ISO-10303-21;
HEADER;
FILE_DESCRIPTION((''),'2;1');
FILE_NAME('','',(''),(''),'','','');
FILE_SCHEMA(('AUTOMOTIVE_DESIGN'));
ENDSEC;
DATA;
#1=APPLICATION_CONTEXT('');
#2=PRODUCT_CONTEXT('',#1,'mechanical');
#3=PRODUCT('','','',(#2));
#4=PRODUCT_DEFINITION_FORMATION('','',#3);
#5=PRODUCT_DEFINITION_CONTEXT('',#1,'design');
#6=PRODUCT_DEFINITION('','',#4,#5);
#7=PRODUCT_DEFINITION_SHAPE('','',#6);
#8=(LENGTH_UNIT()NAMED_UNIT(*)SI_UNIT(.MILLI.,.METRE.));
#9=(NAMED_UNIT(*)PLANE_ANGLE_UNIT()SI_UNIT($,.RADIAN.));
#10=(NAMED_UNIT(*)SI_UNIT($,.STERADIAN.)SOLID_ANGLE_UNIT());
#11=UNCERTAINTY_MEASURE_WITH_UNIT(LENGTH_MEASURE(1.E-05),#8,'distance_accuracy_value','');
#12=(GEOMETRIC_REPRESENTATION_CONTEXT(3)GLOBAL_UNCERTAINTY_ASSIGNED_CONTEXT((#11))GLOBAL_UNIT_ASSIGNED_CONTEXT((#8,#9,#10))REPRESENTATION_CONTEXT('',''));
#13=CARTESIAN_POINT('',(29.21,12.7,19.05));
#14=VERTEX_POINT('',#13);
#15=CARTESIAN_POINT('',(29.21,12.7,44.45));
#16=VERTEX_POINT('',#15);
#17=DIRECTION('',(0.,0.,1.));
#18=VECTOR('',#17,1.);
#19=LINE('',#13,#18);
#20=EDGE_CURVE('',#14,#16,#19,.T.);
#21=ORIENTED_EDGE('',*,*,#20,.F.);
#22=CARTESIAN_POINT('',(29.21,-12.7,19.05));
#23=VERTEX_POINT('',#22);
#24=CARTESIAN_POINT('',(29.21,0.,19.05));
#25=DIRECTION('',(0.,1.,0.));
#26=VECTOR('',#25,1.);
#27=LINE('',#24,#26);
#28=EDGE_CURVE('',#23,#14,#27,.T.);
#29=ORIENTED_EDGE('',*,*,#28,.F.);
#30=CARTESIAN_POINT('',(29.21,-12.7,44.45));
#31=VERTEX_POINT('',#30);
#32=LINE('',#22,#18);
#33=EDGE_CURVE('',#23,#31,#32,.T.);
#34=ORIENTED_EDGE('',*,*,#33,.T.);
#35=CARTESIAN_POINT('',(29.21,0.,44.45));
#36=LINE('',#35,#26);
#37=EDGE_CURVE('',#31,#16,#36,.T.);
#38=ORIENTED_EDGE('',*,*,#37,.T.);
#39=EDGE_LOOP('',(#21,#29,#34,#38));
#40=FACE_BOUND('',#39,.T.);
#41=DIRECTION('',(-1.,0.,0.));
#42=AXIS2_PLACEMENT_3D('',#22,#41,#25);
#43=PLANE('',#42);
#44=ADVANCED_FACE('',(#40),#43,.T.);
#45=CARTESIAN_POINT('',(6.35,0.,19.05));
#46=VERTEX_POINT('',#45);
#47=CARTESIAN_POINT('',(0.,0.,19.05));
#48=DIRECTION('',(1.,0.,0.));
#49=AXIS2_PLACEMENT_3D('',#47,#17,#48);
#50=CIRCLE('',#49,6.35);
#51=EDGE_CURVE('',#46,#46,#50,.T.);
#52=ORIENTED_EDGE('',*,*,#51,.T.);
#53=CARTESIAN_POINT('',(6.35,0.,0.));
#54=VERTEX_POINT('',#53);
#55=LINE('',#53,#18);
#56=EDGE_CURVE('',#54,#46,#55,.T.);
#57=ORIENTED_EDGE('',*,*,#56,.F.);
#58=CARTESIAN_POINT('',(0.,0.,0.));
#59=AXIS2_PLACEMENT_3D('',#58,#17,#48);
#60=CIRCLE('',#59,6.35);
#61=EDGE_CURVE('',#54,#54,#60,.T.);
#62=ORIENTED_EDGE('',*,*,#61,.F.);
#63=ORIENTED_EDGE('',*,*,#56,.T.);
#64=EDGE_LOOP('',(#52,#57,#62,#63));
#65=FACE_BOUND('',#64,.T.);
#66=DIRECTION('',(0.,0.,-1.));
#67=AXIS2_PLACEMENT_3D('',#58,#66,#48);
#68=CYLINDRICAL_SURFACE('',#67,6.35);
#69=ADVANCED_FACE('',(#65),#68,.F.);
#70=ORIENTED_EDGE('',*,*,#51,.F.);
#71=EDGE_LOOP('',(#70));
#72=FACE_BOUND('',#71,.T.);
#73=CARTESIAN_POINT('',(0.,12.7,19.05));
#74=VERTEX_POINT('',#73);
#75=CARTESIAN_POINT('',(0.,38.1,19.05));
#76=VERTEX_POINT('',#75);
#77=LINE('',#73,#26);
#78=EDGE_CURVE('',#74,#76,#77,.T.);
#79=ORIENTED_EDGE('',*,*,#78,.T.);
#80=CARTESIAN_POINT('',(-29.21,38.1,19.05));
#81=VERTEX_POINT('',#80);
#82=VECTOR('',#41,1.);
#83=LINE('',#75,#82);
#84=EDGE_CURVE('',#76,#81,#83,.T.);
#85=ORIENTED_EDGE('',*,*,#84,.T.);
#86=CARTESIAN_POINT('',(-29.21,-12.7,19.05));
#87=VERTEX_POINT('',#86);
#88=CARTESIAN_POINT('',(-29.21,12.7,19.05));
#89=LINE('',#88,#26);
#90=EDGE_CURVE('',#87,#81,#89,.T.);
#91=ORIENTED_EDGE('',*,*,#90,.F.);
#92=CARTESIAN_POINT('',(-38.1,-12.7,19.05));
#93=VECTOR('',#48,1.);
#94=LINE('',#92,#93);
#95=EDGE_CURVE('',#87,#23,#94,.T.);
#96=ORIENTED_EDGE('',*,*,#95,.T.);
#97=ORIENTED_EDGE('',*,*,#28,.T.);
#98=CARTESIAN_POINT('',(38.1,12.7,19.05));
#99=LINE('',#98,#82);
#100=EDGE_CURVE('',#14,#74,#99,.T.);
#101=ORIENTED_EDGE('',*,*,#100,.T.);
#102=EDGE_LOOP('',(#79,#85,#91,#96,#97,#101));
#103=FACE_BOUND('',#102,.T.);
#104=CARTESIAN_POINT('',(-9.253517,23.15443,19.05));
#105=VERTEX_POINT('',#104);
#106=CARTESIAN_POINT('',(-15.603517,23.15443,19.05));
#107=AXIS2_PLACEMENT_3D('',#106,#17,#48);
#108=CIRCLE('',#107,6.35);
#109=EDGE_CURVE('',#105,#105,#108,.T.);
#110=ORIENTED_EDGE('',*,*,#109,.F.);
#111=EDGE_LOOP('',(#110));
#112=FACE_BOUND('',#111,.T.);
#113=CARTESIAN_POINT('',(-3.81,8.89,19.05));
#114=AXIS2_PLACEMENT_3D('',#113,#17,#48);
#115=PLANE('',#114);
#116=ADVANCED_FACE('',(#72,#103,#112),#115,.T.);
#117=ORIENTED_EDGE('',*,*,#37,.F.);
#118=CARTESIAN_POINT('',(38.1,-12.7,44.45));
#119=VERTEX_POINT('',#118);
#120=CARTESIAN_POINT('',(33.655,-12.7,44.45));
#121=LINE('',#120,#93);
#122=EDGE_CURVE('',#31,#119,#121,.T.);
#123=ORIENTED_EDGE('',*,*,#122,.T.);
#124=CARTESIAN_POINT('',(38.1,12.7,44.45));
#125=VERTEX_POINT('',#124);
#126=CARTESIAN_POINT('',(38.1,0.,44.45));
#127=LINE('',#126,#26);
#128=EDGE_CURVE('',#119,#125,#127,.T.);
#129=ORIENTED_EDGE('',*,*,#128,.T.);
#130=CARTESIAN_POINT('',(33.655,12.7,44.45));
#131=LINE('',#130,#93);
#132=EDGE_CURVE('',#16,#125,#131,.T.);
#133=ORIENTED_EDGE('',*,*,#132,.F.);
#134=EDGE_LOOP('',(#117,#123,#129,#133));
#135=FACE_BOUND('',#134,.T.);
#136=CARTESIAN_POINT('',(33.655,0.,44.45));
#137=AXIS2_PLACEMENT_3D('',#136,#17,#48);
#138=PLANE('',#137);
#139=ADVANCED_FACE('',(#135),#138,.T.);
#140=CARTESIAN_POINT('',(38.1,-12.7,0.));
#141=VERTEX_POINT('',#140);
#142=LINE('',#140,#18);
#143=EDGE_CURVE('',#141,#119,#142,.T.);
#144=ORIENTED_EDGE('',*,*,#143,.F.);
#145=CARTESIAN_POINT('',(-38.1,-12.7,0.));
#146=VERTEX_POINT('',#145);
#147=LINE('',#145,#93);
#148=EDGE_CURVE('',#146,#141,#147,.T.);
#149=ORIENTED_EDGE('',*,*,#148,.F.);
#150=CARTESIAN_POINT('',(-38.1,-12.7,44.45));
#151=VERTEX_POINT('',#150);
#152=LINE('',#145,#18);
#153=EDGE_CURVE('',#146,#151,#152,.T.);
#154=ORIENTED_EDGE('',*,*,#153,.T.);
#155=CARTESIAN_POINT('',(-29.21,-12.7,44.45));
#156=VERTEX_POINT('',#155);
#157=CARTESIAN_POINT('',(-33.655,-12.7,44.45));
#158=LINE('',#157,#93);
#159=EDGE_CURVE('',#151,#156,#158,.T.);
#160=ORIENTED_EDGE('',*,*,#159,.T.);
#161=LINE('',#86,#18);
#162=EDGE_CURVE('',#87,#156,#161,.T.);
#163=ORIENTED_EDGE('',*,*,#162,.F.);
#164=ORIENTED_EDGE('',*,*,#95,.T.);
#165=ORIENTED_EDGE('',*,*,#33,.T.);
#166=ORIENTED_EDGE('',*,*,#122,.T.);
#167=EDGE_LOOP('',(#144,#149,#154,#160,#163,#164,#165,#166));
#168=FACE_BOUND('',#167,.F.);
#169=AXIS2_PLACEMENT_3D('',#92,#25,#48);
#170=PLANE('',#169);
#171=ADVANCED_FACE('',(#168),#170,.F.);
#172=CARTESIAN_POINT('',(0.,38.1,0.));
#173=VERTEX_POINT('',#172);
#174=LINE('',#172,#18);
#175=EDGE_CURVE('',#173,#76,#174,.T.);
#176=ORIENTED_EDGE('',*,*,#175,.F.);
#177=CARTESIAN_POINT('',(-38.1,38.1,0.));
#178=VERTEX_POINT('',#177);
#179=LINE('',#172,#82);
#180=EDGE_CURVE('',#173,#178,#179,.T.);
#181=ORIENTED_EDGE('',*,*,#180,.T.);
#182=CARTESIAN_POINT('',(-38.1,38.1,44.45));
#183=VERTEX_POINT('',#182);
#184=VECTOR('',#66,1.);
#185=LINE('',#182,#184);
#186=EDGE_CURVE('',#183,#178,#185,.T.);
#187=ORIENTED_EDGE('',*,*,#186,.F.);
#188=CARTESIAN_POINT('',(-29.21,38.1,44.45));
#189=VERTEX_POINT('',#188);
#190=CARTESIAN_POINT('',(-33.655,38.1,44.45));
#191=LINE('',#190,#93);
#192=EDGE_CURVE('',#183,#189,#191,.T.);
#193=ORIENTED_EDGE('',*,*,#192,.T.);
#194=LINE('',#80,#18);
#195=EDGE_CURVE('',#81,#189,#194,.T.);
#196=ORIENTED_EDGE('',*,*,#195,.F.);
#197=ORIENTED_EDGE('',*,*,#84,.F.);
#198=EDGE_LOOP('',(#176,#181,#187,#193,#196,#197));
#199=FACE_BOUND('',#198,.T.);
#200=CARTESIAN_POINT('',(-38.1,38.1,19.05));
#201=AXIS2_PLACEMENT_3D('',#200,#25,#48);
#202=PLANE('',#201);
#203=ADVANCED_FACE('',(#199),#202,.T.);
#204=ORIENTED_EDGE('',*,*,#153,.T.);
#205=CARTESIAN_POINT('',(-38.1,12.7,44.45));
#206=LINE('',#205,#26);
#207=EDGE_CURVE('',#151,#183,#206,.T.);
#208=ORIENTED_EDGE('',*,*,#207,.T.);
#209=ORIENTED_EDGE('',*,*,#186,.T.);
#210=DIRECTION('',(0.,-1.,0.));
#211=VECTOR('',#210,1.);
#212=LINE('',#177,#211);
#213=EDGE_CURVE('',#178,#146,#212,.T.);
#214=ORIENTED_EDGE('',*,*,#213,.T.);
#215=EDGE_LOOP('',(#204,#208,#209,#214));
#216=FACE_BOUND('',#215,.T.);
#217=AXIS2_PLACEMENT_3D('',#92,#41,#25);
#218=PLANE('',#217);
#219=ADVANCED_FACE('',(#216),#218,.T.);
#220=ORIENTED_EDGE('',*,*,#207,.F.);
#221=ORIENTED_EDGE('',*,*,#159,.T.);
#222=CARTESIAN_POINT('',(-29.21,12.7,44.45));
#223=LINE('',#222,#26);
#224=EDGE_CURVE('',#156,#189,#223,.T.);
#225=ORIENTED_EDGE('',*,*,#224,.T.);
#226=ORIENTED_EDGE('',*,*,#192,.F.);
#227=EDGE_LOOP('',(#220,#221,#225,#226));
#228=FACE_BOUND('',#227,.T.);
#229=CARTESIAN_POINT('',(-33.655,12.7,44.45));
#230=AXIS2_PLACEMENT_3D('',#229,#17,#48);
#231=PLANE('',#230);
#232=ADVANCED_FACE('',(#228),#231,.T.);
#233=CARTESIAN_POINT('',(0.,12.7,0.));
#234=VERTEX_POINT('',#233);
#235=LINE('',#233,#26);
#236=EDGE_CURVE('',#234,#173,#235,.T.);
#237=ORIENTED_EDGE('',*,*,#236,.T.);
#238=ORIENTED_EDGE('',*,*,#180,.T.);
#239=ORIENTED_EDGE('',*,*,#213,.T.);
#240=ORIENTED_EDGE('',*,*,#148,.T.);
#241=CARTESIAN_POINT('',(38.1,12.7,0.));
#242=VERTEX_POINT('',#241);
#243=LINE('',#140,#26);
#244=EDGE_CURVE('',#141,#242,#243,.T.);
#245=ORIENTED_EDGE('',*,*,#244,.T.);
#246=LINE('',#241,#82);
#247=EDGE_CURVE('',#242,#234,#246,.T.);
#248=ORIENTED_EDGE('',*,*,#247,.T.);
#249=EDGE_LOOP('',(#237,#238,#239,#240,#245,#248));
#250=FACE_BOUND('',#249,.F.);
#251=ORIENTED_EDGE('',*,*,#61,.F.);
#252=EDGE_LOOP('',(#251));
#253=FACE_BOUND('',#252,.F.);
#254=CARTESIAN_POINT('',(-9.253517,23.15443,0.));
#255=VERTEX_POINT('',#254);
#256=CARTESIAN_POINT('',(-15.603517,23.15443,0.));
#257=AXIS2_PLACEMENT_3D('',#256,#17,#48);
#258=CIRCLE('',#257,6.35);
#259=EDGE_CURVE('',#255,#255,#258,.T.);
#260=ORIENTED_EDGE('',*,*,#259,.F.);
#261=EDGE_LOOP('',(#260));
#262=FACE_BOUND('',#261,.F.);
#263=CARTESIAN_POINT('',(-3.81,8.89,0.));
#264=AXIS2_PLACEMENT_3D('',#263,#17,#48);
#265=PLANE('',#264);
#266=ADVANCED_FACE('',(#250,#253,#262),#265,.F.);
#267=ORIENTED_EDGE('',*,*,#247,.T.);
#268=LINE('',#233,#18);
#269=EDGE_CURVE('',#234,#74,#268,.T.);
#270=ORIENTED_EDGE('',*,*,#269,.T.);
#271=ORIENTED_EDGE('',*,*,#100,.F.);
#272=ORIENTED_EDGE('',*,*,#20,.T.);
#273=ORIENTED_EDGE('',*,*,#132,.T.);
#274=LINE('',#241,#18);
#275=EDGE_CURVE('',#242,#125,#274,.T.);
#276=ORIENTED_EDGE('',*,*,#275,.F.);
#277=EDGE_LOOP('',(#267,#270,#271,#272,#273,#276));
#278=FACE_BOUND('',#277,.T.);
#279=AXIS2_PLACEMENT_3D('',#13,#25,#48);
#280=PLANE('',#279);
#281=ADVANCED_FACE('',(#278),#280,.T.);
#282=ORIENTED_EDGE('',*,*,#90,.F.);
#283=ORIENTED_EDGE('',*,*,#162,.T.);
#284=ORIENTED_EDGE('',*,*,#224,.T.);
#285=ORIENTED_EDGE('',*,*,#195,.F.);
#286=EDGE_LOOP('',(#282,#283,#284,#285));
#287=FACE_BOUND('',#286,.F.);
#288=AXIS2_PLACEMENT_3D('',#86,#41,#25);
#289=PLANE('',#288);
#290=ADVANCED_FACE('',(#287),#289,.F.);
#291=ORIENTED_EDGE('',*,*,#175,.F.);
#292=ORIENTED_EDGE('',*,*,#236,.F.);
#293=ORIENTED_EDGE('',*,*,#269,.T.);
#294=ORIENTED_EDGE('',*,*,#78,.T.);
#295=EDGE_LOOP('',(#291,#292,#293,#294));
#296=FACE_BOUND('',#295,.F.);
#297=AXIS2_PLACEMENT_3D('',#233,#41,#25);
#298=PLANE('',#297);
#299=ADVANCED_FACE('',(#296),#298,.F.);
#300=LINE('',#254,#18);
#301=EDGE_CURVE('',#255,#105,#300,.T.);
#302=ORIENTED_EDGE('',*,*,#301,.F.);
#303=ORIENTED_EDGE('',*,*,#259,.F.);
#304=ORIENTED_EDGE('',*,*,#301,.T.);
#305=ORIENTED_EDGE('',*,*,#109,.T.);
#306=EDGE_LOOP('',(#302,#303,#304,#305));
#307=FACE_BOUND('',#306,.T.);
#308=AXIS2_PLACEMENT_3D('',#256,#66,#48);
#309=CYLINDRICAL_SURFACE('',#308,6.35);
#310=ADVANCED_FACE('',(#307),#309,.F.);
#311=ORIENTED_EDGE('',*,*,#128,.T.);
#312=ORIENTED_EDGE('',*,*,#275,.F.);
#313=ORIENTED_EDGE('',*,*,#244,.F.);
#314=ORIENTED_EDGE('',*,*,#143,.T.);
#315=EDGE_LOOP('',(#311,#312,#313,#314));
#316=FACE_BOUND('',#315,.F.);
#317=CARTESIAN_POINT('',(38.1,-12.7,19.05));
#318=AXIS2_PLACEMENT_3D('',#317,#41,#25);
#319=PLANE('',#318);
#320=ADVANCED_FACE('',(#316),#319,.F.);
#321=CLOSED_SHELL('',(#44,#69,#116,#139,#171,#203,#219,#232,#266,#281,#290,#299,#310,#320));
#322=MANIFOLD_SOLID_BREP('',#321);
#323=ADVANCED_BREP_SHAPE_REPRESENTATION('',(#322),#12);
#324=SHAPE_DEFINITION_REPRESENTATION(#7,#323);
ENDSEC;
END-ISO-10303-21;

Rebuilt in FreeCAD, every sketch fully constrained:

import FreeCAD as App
import Part
import Sketcher

V = App.Vector
Q = App.Units.Quantity

doc = App.newDocument("Part")
body = doc.addObject("PartDesign::Body", "Body")

# Sketch on XY plane
sketch1 = body.newObject("Sketcher::SketchObject", "Sketch")
sketch1.AttachmentSupport = (doc.getObject("XY_Plane"), [""])
sketch1.MapMode = "FlatFace"
sketch1.addGeometry([
    Part.LineSegment(V(38.1, -12.7, 0), V(38.1, 12.7, 0)),  # 0
    Part.LineSegment(V(38.1, 12.7, 0), V(0, 12.7, 0)),  # 1
    Part.LineSegment(V(0, 12.7, 0), V(0, 38.1, 0)),  # 2
    Part.LineSegment(V(0, 38.1, 0), V(-38.1, 38.1, 0)),  # 3
    Part.LineSegment(V(-38.1, 38.1, 0), V(-38.1, -12.7, 0)),  # 4
    Part.LineSegment(V(-38.1, -12.7, 0), V(38.1, -12.7, 0)),  # 5
    Part.Circle(V(0, 0, 0), V(0, 0, 1), 6.35),  # 6
    Part.Circle(V(-15.603517, 23.15443, 0), V(0, 0, 1), 6.35),  # 7
], False)
sketch1.addConstraint([
    Sketcher.Constraint("Coincident", 0, 2, 1, 1),
    Sketcher.Constraint("Coincident", 1, 2, 2, 1),
    Sketcher.Constraint("Coincident", 2, 2, 3, 1),
    Sketcher.Constraint("Coincident", 3, 2, 4, 1),
    Sketcher.Constraint("Coincident", 4, 2, 5, 1),
    Sketcher.Constraint("Coincident", 5, 2, 0, 1),
    Sketcher.Constraint("Vertical", 0),
    Sketcher.Constraint("Horizontal", 1),
    Sketcher.Constraint("Vertical", 2),
    Sketcher.Constraint("Horizontal", 3),
    Sketcher.Constraint("Vertical", 4),
    Sketcher.Constraint("Horizontal", 5),
    Sketcher.Constraint("Coincident", 6, 3, -1, 1),
    Sketcher.Constraint("Equal", 6, 7),
    Sketcher.Constraint("Symmetric", 0, 2, 4, 2, -1, 1),
    Sketcher.Constraint("PointOnObject", 1, 2, -2),
    Sketcher.Constraint("Equal", 0, 2),
    Sketcher.Constraint("Diameter", 6, Q("0.5 in")),
    Sketcher.Constraint("DistanceX", 5, 1, 5, 2, Q("3 in")),
    Sketcher.Constraint("DistanceY", 0, 1, 0, 2, Q("1 in")),
    Sketcher.Constraint("DistanceY", -1, 1, 7, 3, 23.15443),
    Sketcher.Constraint("DistanceX", 7, 3, -1, 1, 15.603517),
])
pad1 = body.newObject("PartDesign::Pad", "Pad")
pad1.Profile = sketch1
pad1.Length = Q("0.75 in")

# Sketch on XY plane
sketch2 = body.newObject("Sketcher::SketchObject", "Sketch001")
sketch2.AttachmentSupport = (doc.getObject("XY_Plane"), [""])
sketch2.MapMode = "FlatFace"
sketch2.AttachmentOffset = App.Placement(V(0, 0, 0.75 * 25.4), App.Rotation())
sketch2.addGeometry([
    Part.LineSegment(V(29.21, 12.7, 0), V(29.21, -12.7, 0)),
    Part.LineSegment(V(29.21, -12.7, 0), V(38.1, -12.7, 0)),
    Part.LineSegment(V(38.1, -12.7, 0), V(38.1, 12.7, 0)),
    Part.LineSegment(V(38.1, 12.7, 0), V(29.21, 12.7, 0)),
], False)
sketch2.addConstraint([
    Sketcher.Constraint("Coincident", 0, 2, 1, 1),
    Sketcher.Constraint("Coincident", 1, 2, 2, 1),
    Sketcher.Constraint("Coincident", 2, 2, 3, 1),
    Sketcher.Constraint("Coincident", 3, 2, 0, 1),
    Sketcher.Constraint("Vertical", 0),
    Sketcher.Constraint("Horizontal", 1),
    Sketcher.Constraint("Vertical", 2),
    Sketcher.Constraint("Horizontal", 3),
    Sketcher.Constraint("DistanceY", 0, 2, 0, 1, Q("1 in")),
    Sketcher.Constraint("DistanceX", 1, 1, 1, 2, Q("0.35 in")),
    Sketcher.Constraint("DistanceY", 0, 2, -1, 1, Q("0.5 in")),
    Sketcher.Constraint("DistanceX", -1, 1, 1, 2, Q("1.5 in")),
])
pad2 = body.newObject("PartDesign::Pad", "Pad001")
pad2.Profile = sketch2
pad2.Length = Q("1 in")

# Sketch on XY plane
sketch3 = body.newObject("Sketcher::SketchObject", "Sketch002")
sketch3.AttachmentSupport = (doc.getObject("XY_Plane"), [""])
sketch3.MapMode = "FlatFace"
sketch3.AttachmentOffset = App.Placement(V(0, 0, 0.75 * 25.4), App.Rotation())
sketch3.addGeometry([
    Part.LineSegment(V(-38.1, 38.1, 0), V(-38.1, -12.7, 0)),  # 0
    Part.LineSegment(V(-38.1, -12.7, 0), V(-29.21, -12.7, 0)),  # 1
    Part.LineSegment(V(-29.21, -12.7, 0), V(-29.21, 38.1, 0)),  # 2
    Part.LineSegment(V(-29.21, 38.1, 0), V(-38.1, 38.1, 0)),  # 3
    Part.LineSegment(V(29.21, 12.7, 0), V(29.21, -12.7, 0)),  # 4
    Part.LineSegment(V(29.21, -12.7, 0), V(38.1, -12.7, 0)),  # 5
    Part.LineSegment(V(38.1, -12.7, 0), V(38.1, 12.7, 0)),  # 6
    Part.LineSegment(V(38.1, 12.7, 0), V(29.21, 12.7, 0)),  # 7
], False)
sketch3.addConstraint([
    Sketcher.Constraint("Coincident", 0, 2, 1, 1),
    Sketcher.Constraint("Coincident", 1, 2, 2, 1),
    Sketcher.Constraint("Coincident", 2, 2, 3, 1),
    Sketcher.Constraint("Coincident", 3, 2, 0, 1),
    Sketcher.Constraint("Coincident", 4, 2, 5, 1),
    Sketcher.Constraint("Coincident", 5, 2, 6, 1),
    Sketcher.Constraint("Coincident", 6, 2, 7, 1),
    Sketcher.Constraint("Coincident", 7, 2, 4, 1),
    Sketcher.Constraint("Vertical", 0),
    Sketcher.Constraint("Horizontal", 1),
    Sketcher.Constraint("Vertical", 2),
    Sketcher.Constraint("Horizontal", 3),
    Sketcher.Constraint("Vertical", 4),
    Sketcher.Constraint("Horizontal", 5),
    Sketcher.Constraint("Vertical", 6),
    Sketcher.Constraint("Horizontal", 7),
    Sketcher.Constraint("Symmetric", 0, 2, 6, 2, -1, 1),
    Sketcher.Constraint("Symmetric", 1, 2, 4, 2, -2),
    Sketcher.Constraint("DistanceY", 0, 2, 0, 1, Q("2 in")),
    Sketcher.Constraint("DistanceY", 4, 2, 4, 1, Q("1 in")),
    Sketcher.Constraint("DistanceX", 0, 2, 5, 2, Q("3 in")),
    Sketcher.Constraint("DistanceX", 1, 1, 1, 2, Q("0.35 in")),
])
pad3 = body.newObject("PartDesign::Pad", "Pad002")
pad3.Profile = sketch3
pad3.Length = Q("1 in")

doc.recompute()
